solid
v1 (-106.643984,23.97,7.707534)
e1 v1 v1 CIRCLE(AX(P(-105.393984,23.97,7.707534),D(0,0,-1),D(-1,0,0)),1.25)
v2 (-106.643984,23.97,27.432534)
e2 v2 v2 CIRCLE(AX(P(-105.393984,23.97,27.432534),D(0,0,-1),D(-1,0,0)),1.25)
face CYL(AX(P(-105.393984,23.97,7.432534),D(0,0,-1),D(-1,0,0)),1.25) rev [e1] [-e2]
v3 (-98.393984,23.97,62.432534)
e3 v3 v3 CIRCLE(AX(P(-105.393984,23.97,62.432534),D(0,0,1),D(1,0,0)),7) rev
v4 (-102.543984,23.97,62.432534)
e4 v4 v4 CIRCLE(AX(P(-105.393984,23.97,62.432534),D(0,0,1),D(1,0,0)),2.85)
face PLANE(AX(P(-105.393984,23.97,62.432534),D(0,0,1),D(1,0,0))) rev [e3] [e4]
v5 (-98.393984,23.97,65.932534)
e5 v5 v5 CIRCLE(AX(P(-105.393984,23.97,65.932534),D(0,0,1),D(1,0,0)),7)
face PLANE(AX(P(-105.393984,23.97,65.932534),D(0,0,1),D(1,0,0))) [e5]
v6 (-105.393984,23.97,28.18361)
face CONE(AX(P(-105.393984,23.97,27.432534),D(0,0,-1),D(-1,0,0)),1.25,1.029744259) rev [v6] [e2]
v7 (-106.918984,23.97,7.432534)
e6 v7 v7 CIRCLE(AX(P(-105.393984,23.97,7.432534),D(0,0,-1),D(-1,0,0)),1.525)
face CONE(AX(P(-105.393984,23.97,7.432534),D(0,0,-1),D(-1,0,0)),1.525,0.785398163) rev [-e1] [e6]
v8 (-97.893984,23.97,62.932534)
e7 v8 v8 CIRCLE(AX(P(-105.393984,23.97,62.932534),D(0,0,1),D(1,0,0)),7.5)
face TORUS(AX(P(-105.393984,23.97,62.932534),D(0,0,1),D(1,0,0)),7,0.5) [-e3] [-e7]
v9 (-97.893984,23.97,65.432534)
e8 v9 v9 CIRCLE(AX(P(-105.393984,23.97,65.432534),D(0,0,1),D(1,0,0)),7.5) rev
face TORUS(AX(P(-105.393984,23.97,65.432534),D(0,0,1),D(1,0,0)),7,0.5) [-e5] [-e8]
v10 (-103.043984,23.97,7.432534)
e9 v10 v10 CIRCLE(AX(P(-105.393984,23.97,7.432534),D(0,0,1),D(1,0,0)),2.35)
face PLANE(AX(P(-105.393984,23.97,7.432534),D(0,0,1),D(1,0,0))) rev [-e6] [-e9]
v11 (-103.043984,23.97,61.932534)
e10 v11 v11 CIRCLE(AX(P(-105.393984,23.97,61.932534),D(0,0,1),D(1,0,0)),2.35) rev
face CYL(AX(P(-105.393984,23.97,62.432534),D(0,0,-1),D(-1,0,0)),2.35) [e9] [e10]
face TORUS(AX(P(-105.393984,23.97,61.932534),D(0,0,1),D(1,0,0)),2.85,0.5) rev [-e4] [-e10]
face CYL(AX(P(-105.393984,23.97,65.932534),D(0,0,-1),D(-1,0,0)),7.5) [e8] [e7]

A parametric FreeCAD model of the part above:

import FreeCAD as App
import Part
import Sketcher
from FreeCAD import Vector
Q = App.Units.Quantity


def edges_at(feature, points):
    """Names of the edges that pass closest to the given points."""
    edges = feature.Shape.Edges
    near = lambda p: min(range(len(edges)), key=lambda i: edges[i].distToShape(Part.Vertex(*p))[0])
    return sorted({f"Edge{near(p) + 1}" for p in points})

doc = App.newDocument("Part")
body = doc.addObject("PartDesign::Body", "Body")

# Sketch on XY plane
sketch1 = doc.addObject("Sketcher::SketchObject", "Sketch")
body.addObject(sketch1)
sketch1.AttachmentSupport = (doc.XY_Plane, [""])
sketch1.MapMode = "FlatFace"
sketch1.AttachmentOffset = App.Placement(Vector(0, 0, 7.432534), App.Rotation())
sketch1.addGeometry(Part.Circle(Vector(-105.4, 24, 0), Vector(0, 0, 1), 2.4), False)
sketch1.addConstraint(Sketcher.Constraint("Diameter", 0, Q("4.7 mm")))
sketch1.addConstraint(Sketcher.Constraint("DistanceY", -1, 1, 0, 3, Q("23.97 mm")))
sketch1.addConstraint(Sketcher.Constraint("DistanceX", 0, 3, -1, 1, Q("105.393984 mm")))
pad1 = doc.addObject("PartDesign::Pad", "Pad")
body.addObject(pad1)
pad1.Profile = sketch1
pad1.Length = 55

# Sketch on XY plane
sketch2 = doc.addObject("Sketcher::SketchObject", "Sketch001")
body.addObject(sketch2)
sketch2.AttachmentSupport = (doc.XY_Plane, [""])
sketch2.MapMode = "FlatFace"
sketch2.AttachmentOffset = App.Placement(Vector(0, 0, 62.432534), App.Rotation())
sketch2.addGeometry(Part.Circle(Vector(-105, 24, 0), Vector(0, 0, 1), 8), False)
sketch2.addConstraint(Sketcher.Constraint("Diameter", 0, Q("15 mm")))
sketch2.addConstraint(Sketcher.Constraint("DistanceY", -1, 1, 0, 3, Q("23.97 mm")))
sketch2.addConstraint(Sketcher.Constraint("DistanceX", 0, 3, -1, 1, Q("105.393984 mm")))
pad2 = doc.addObject("PartDesign::Pad", "Pad001")
body.addObject(pad2)
pad2.Profile = sketch2
pad2.Length = 3.5
doc.recompute()

fillet = doc.addObject("PartDesign::Fillet", "Fillet")
body.addObject(fillet)
fillet.Base = (pad2, edges_at(pad2, [(-107.744, 23.97, 62.433), (-112.894, 23.97, 62.433), (-112.894, 23.97, 65.933)]))
fillet.Radius = 0.5

# Sketch on XY plane
sketch3 = doc.addObject("Sketcher::SketchObject", "Sketch002")
body.addObject(sketch3)
sketch3.AttachmentSupport = (doc.XY_Plane, [""])
sketch3.MapMode = "FlatFace"
sketch3.AttachmentOffset = App.Placement(Vector(0, 0, 7.432534), App.Rotation())
sketch3.addGeometry(Part.Circle(Vector(-105.4, 24, 0), Vector(0, 0, 1), 1.2), False)
sketch3.addConstraint(Sketcher.Constraint("Diameter", 0, Q("2.5 mm")))
sketch3.addConstraint(Sketcher.Constraint("DistanceY", -1, 1, 0, 3, Q("23.97 mm")))
sketch3.addConstraint(Sketcher.Constraint("DistanceX", 0, 3, -1, 1, Q("105.393984 mm")))
doc.recompute()
hole = doc.addObject("PartDesign::Hole", "Hole")
body.addObject(hole)
hole.Profile = sketch3
hole.ThreadType = "None"
hole.Diameter = 2.5
hole.DepthType = "Dimension"
hole.Depth = 20
hole.DrillPoint = "Angled"
hole.DrillPointAngle = 118
hole.HoleCutType = "Countersink"
hole.HoleCutDiameter = 3.05
hole.HoleCutCountersinkAngle = 90
hole.Reversed = True

doc.recompute()
